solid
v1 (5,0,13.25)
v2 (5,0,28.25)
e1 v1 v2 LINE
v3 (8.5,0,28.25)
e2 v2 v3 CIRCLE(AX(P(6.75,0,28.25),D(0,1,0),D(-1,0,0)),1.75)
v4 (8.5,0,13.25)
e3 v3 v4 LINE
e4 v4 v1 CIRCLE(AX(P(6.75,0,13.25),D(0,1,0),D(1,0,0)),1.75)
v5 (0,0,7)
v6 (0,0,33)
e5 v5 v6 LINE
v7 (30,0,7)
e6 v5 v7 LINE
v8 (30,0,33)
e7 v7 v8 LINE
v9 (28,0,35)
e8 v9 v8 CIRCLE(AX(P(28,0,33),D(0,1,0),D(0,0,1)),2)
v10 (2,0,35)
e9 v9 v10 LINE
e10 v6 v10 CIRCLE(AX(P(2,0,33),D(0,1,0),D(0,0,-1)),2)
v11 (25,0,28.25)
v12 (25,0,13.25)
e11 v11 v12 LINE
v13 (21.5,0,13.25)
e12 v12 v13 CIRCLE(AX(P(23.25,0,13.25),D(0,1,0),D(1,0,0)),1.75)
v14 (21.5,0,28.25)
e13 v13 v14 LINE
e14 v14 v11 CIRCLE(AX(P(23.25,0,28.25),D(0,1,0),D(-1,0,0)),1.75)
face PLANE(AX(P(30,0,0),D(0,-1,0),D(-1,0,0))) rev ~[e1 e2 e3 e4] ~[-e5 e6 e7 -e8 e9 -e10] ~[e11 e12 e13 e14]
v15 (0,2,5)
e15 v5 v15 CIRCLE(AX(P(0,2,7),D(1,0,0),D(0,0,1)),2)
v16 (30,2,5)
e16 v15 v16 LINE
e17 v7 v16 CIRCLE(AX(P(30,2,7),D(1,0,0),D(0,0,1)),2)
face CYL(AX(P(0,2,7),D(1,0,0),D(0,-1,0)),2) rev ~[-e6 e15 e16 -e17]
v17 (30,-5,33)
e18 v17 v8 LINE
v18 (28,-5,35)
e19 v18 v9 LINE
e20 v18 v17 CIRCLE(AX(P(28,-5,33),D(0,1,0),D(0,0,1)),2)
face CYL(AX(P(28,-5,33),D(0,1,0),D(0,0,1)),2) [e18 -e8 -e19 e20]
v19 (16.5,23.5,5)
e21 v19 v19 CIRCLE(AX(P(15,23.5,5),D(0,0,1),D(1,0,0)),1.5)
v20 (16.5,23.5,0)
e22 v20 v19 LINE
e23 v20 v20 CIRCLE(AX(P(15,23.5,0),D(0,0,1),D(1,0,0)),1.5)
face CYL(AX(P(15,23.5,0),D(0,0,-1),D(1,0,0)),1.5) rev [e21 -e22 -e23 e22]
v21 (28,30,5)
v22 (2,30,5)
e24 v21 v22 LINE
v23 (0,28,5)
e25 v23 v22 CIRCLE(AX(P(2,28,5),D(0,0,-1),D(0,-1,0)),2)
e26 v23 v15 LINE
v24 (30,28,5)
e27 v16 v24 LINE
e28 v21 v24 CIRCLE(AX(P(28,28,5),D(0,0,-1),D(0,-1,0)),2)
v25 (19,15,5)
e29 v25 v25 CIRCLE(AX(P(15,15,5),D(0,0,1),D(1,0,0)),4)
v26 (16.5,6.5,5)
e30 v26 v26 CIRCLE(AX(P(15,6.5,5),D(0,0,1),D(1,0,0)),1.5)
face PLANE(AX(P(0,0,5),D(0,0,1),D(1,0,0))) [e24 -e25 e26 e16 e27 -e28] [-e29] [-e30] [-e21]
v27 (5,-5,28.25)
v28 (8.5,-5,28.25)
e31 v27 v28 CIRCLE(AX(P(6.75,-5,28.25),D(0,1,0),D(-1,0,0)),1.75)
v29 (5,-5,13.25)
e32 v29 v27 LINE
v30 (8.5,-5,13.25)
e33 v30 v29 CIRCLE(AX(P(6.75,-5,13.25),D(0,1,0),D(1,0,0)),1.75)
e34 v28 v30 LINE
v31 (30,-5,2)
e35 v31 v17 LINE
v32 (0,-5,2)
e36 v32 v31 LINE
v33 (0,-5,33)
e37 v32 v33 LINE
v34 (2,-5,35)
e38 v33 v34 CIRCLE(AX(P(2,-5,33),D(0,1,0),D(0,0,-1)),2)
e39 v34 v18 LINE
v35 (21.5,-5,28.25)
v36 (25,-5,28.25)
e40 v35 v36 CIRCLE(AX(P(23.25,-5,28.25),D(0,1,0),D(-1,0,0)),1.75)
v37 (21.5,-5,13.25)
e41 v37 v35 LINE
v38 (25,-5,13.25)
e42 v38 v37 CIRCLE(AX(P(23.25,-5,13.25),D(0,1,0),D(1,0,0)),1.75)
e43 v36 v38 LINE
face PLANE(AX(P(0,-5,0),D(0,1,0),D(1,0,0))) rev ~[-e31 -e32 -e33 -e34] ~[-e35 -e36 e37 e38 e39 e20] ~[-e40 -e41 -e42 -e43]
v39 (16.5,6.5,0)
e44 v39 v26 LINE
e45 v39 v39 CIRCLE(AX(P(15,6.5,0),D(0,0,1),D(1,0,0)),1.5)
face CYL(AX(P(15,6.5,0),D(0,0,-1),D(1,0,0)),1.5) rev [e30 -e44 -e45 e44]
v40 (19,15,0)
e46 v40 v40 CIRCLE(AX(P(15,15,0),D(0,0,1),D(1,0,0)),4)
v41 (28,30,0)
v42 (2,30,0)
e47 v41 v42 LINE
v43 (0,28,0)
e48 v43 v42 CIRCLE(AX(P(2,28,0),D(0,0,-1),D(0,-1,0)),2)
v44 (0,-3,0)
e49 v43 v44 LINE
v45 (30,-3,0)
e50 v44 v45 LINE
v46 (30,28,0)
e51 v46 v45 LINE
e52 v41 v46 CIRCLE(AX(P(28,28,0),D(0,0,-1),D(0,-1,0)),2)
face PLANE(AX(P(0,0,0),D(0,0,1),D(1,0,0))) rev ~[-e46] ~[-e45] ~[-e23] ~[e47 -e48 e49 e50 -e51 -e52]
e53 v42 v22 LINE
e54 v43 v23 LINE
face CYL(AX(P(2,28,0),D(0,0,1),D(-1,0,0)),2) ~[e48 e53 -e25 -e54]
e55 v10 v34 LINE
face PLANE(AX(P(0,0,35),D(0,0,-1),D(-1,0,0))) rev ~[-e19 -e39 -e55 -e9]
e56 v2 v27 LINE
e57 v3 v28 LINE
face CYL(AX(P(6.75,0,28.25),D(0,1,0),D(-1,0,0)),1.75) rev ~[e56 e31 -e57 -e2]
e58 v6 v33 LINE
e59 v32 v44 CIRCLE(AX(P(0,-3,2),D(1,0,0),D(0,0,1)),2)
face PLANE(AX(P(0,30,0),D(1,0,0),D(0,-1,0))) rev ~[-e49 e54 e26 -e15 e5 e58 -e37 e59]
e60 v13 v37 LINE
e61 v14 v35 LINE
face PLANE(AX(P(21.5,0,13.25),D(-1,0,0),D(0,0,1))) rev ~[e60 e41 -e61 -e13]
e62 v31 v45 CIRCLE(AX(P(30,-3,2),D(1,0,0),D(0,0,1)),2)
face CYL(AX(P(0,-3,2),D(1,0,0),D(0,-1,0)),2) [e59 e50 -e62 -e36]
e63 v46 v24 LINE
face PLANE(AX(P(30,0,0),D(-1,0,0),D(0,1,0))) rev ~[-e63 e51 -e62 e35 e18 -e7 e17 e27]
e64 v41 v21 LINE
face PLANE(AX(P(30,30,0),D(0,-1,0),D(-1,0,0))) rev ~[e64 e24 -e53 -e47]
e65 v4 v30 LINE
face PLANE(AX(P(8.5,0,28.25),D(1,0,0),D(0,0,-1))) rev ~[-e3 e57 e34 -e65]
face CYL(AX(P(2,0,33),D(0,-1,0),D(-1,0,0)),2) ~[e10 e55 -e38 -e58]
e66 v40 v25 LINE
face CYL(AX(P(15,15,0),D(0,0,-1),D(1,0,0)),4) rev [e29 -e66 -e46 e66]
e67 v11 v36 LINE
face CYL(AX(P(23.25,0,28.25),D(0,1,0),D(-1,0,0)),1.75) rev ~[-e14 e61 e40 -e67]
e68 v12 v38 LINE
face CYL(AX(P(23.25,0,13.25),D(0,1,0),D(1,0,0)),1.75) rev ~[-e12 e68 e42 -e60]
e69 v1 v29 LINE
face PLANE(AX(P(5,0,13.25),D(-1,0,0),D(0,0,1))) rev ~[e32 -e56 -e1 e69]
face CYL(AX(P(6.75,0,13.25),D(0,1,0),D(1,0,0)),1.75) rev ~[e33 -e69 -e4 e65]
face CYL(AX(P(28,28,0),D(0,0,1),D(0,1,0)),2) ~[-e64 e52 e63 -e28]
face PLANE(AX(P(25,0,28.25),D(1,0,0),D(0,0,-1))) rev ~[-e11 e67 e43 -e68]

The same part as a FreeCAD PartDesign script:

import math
import FreeCAD as App
import Part
import Sketcher

V = App.Vector
Q = App.Units.Quantity


def edges_at(feature, points):
    """Names of the edges that pass closest to the given points."""
    edges = feature.Shape.Edges
    near = lambda p: min(range(len(edges)), key=lambda i: edges[i].distToShape(Part.Vertex(*p))[0])
    return sorted({f"Edge{near(p) + 1}" for p in points})


def add_polygon(sketch, points):
    """Adds a closed chain of lines whose ends are joined by coincident constraints."""
    first, n = sketch.GeometryCount, len(points)
    for a, b in zip(points, points[1:] + points[:1]):
        sketch.addGeometry(Part.LineSegment(App.Vector(*a, 0), App.Vector(*b, 0)), False)
    for i in range(n):
        sketch.addConstraint(Sketcher.Constraint("Coincident", first + i, 2, first + (i + 1) % n, 1))

doc = App.newDocument("Part")
body = doc.addObject("PartDesign::Body", "Body")

# Sketch on XY plane
sketch1 = body.newObject("Sketcher::SketchObject", "Sketch")
sketch1.AttachmentSupport = (doc.getObject("XY_Plane"), [""])
sketch1.MapMode = "FlatFace"
add_polygon(sketch1, [(0, 30), (0, 0), (30, 0), (30, 30)])  # lines 0-3
sketch1.addGeometry(Part.Circle(V(15, 6.5, 0), V(0, 0, 1), 1.5), False)  # 4
sketch1.addGeometry(Part.Circle(V(15, 15, 0), V(0, 0, 1), 4), False)  # 5
sketch1.addGeometry(Part.Circle(V(15, 23.5, 0), V(0, 0, 1), 1.5), False)  # 6
sketch1.addConstraint([
    Sketcher.Constraint("Vertical", 0),
    Sketcher.Constraint("Horizontal", 1),
    Sketcher.Constraint("Vertical", 2),
    Sketcher.Constraint("Horizontal", 3),
    Sketcher.Constraint("Coincident", 0, 2, -1, 1),
    Sketcher.Constraint("Equal", 4, 6),
    Sketcher.Constraint("Vertical", 4, 3, 5, 3),
    Sketcher.Constraint("Vertical", 5, 3, 6, 3),
    Sketcher.Constraint("Equal", 3, 0),
    Sketcher.Constraint("Diameter", 4, Q("3 mm")),
    Sketcher.Constraint("Diameter", 5, Q("8 mm")),
    Sketcher.Constraint("DistanceX", 1, 1, 1, 2, Q("30 mm")),
    Sketcher.Constraint("DistanceY", -1, 1, 4, 3, Q("6.5 mm")),
    Sketcher.Constraint("DistanceY", 4, 3, 5, 3, Q("8.5 mm")),
    Sketcher.Constraint("DistanceY", 5, 3, 6, 3, Q("8.5 mm")),
    Sketcher.Constraint("DistanceX", -1, 1, 4, 3, Q("15 mm")),
])
pad1 = body.newObject("PartDesign::Pad", "Pad")
pad1.Profile = sketch1
pad1.Length = 5

# Sketch on XY plane
sketch2 = body.newObject("Sketcher::SketchObject", "Sketch001")
sketch2.AttachmentSupport = (doc.getObject("XY_Plane"), [""])
sketch2.MapMode = "FlatFace"
add_polygon(sketch2, [(0, 0), (30, 0), (30, -5), (0, -5)])  # lines 0-3
sketch2.addConstraint([
    Sketcher.Constraint("Horizontal", 0),
    Sketcher.Constraint("Vertical", 1),
    Sketcher.Constraint("Horizontal", 2),
    Sketcher.Constraint("Vertical", 3),
    Sketcher.Constraint("Coincident", 3, 2, -1, 1),
    Sketcher.Constraint("DistanceY", 1, 2, 1, 1, Q("5 mm")),
    Sketcher.Constraint("DistanceX", 0, 1, 0, 2, Q("30 mm")),
])
pad2 = body.newObject("PartDesign::Pad", "Pad001")
pad2.Profile = sketch2
pad2.Length = 35

# Sketch on XZ plane
sketch3 = body.newObject("Sketcher::SketchObject", "Sketch002")
sketch3.AttachmentSupport = (doc.getObject("XZ_Plane"), [""])
sketch3.MapMode = "FlatFace"
sketch3.addGeometry([
    Part.ArcOfCircle(Part.Circle(V(6.8, 13.2, 0), V(0, 0, 1), 1.8), math.radians(180), math.radians(360)),  # 0
    Part.LineSegment(V(5, 13.2, 0), V(5, 28.2, 0)),  # 1
    Part.ArcOfCircle(Part.Circle(V(6.8, 28.2, 0), V(0, 0, 1), 1.8), math.radians(0), math.radians(180)),  # 2
    Part.LineSegment(V(8.5, 28.2, 0), V(8.5, 13.2, 0)),  # 3
    Part.ArcOfCircle(Part.Circle(V(23.2, 13.2, 0), V(0, 0, 1), 1.8), math.radians(180), math.radians(360)),  # 4
    Part.LineSegment(V(21.5, 13.2, 0), V(21.5, 28.2, 0)),  # 5
    Part.ArcOfCircle(Part.Circle(V(23.2, 28.2, 0), V(0, 0, 1), 1.8), math.radians(0), math.radians(180)),  # 6
    Part.LineSegment(V(25, 28.2, 0), V(25, 13.2, 0)),  # 7
], False)
sketch3.addConstraint([
    Sketcher.Constraint("Tangent", 0, 1, 1, 1),
    Sketcher.Constraint("Tangent", 1, 2, 2, 2),
    Sketcher.Constraint("Tangent", 2, 1, 3, 1),
    Sketcher.Constraint("Tangent", 3, 2, 0, 2),
    Sketcher.Constraint("Tangent", 4, 1, 5, 1),
    Sketcher.Constraint("Tangent", 5, 2, 6, 2),
    Sketcher.Constraint("Tangent", 6, 1, 7, 1),
    Sketcher.Constraint("Tangent", 7, 2, 4, 2),
    Sketcher.Constraint("Vertical", 1),
    Sketcher.Constraint("Vertical", 3),
    Sketcher.Constraint("Vertical", 5),
    Sketcher.Constraint("Vertical", 7),
    Sketcher.Constraint("Equal", 2, 4),
    Sketcher.Constraint("Horizontal", 0, 3, 4, 3),
    Sketcher.Constraint("Horizontal", 2, 3, 6, 3),
    Sketcher.Constraint("DistanceY", 1, 1, 1, 2, Q("15 mm")),
    Sketcher.Constraint("Radius", 0, Q("1.75 mm")),
    Sketcher.Constraint("DistanceX", -1, 1, 0, 1, Q("5 mm")),
    Sketcher.Constraint("DistanceX", -1, 1, 6, 1, Q("25 mm")),
    Sketcher.Constraint("DistanceY", -1, 1, 0, 3, Q("13.25 mm")),
])
pocket1 = body.newObject("PartDesign::Pocket", "Pocket")
pocket1.Profile = sketch3
pocket1.Length = 5
pocket1.Reversed = True
doc.recompute()

fillet = body.newObject("PartDesign::Fillet", "Fillet")
fillet.Base = (pocket1, edges_at(pocket1, [(15, -5, 0)]))
fillet.Radius = 2
doc.recompute()

fillet2 = body.newObject("PartDesign::Fillet", "Fillet001")
fillet2.Base = (fillet, edges_at(fillet, [
    (0, -2.5, 35),
    (30, -2.5, 35),
    (30, 30, 2.5),
    (0, 30, 2.5),
    (15, 0, 5),
]))
fillet2.Radius = 2

doc.recompute()
